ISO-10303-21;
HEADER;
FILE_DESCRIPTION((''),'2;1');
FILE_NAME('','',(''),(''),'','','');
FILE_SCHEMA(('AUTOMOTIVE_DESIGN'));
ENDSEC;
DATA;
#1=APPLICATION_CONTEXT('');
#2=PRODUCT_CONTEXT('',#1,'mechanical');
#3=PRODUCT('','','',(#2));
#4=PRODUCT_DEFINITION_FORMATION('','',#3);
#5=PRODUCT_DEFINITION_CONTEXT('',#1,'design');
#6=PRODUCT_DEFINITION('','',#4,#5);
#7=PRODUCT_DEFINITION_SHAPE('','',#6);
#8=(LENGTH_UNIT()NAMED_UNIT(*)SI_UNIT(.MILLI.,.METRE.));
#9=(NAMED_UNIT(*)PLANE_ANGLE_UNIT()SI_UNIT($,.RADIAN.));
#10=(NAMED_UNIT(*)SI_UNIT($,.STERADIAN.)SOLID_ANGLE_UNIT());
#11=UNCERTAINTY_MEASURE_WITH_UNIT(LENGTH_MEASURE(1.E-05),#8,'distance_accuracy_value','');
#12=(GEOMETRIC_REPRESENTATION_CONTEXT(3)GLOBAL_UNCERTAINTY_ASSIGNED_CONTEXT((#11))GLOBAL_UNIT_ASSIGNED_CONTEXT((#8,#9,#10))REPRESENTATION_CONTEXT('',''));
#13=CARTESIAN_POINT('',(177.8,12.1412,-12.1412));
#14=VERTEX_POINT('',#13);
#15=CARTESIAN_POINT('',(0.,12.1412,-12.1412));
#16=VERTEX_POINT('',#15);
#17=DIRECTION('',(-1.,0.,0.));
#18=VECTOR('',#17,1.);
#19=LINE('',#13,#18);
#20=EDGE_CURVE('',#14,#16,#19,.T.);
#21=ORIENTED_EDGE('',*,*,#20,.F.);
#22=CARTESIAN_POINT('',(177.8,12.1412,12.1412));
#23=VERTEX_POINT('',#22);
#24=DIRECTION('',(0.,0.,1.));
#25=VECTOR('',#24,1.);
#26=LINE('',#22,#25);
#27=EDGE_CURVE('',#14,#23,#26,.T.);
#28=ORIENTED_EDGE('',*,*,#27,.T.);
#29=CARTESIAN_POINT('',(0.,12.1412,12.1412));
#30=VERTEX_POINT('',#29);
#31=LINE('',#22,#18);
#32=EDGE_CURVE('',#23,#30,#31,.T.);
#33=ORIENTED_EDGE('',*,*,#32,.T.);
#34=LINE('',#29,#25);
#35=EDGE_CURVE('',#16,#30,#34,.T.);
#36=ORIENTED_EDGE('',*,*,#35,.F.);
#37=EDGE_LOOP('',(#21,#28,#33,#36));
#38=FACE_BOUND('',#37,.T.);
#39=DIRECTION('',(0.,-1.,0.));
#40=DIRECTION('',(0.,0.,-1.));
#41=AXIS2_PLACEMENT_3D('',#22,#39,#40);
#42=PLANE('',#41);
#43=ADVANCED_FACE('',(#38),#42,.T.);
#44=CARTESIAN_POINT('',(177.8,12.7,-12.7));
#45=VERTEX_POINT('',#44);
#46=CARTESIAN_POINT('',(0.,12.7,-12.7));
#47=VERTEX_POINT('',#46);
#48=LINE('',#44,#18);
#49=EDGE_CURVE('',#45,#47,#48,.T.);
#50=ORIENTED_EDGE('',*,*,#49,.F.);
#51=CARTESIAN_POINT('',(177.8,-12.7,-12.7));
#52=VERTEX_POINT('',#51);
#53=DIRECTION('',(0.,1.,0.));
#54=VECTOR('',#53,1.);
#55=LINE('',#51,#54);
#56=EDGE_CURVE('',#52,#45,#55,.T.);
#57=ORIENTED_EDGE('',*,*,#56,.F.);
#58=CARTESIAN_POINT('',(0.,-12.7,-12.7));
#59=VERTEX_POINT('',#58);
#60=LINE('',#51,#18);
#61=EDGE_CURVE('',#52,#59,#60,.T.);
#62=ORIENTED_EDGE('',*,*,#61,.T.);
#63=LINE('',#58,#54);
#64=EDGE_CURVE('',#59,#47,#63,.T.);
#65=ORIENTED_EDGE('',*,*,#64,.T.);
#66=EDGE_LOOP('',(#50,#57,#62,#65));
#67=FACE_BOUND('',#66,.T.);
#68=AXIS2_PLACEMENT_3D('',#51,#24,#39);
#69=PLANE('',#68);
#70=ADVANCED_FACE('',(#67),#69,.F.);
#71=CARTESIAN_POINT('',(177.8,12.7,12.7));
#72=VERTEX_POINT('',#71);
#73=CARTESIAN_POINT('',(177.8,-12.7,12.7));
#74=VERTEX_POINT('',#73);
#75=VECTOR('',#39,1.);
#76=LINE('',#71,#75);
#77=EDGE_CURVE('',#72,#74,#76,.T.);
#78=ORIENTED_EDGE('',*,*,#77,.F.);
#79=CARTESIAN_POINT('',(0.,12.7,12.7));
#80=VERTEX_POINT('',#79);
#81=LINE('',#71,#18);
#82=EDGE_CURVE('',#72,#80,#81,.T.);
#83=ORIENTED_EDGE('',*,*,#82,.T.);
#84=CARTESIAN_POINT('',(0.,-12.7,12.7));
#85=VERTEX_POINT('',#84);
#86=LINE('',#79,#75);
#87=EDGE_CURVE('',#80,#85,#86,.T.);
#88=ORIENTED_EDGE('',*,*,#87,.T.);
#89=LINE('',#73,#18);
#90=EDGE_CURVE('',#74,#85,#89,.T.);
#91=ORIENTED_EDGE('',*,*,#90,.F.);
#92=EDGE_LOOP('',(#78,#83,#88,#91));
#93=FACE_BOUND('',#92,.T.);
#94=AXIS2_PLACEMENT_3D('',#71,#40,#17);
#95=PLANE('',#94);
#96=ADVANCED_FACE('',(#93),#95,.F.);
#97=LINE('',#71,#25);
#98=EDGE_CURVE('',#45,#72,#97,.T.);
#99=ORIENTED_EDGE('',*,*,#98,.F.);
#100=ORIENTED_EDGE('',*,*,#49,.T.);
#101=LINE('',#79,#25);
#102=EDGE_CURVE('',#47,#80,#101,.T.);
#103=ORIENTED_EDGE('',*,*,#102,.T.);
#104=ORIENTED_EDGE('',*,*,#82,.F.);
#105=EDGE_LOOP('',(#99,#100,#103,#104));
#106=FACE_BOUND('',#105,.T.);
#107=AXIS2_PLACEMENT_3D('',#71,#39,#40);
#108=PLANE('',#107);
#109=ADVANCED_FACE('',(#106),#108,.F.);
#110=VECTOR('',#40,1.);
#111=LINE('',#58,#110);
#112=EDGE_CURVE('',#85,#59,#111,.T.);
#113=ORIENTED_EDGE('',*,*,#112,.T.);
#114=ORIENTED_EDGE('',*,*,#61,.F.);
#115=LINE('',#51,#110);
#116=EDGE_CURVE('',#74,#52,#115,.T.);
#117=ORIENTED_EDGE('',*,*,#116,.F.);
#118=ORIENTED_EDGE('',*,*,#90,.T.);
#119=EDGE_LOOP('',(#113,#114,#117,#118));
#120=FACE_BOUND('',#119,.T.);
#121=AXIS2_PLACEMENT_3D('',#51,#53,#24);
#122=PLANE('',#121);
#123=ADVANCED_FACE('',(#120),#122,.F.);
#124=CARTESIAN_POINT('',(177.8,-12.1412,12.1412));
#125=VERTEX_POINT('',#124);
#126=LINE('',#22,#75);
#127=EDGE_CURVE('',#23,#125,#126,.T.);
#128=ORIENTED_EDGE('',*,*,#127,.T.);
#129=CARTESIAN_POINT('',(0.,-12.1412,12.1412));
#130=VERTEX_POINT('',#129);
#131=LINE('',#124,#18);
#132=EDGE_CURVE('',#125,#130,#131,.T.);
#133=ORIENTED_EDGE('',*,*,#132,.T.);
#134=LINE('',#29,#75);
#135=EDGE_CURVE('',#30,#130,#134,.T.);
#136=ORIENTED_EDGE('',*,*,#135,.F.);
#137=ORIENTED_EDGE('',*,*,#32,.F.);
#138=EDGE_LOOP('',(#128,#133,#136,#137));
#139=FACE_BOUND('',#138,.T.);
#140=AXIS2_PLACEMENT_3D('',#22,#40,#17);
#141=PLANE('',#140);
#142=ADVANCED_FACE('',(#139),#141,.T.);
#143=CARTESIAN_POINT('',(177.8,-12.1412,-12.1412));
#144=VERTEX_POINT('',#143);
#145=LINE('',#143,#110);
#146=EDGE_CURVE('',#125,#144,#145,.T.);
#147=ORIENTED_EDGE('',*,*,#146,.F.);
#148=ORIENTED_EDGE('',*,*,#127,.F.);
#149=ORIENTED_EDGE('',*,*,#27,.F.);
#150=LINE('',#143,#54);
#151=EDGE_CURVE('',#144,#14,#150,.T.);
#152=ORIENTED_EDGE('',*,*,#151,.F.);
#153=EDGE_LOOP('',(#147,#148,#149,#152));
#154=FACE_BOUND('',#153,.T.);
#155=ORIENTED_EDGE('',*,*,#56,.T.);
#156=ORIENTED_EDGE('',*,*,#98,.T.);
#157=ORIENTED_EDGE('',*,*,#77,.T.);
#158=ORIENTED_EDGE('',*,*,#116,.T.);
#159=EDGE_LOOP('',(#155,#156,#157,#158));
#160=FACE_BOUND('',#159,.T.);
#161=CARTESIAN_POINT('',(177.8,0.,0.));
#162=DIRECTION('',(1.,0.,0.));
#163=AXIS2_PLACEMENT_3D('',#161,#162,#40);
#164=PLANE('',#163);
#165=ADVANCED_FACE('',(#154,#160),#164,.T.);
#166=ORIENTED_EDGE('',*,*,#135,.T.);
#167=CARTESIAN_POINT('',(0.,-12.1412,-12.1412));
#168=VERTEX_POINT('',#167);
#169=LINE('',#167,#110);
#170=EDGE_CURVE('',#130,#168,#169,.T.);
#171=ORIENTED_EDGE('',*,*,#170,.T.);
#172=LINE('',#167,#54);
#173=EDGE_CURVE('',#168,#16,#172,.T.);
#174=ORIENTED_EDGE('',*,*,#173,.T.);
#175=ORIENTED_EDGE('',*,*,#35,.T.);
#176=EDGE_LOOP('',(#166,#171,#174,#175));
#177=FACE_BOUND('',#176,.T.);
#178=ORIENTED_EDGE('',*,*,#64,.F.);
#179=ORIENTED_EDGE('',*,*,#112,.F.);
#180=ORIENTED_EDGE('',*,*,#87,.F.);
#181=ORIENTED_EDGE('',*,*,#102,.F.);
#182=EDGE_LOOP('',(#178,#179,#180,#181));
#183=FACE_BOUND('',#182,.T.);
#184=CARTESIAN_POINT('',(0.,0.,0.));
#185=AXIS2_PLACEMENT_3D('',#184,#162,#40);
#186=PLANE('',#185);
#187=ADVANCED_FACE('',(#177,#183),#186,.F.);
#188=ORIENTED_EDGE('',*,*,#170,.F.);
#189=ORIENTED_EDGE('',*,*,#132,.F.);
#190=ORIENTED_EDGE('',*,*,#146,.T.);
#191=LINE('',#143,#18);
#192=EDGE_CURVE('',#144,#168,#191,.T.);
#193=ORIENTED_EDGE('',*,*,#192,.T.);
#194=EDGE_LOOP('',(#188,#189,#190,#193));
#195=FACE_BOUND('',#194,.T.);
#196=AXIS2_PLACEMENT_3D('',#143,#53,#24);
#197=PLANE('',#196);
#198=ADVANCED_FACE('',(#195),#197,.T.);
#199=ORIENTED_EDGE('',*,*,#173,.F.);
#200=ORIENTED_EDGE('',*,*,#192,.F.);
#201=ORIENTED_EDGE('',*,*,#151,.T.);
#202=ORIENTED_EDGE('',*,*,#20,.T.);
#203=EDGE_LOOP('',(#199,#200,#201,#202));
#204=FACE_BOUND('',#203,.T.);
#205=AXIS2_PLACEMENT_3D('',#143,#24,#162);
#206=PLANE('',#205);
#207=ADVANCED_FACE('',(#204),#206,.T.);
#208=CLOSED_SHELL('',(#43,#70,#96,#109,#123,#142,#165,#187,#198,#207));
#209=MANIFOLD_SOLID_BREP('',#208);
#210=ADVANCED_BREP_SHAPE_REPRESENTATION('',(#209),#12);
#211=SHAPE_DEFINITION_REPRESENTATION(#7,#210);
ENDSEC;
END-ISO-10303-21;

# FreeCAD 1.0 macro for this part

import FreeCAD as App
import Part
import Sketcher
Q = App.Units.Quantity


def add_polygon(sketch, points):
    """Adds a closed chain of lines whose ends are joined by coincident constraints."""
    first, n = sketch.GeometryCount, len(points)
    for a, b in zip(points, points[1:] + points[:1]):
        sketch.addGeometry(Part.LineSegment(App.Vector(*a, 0), App.Vector(*b, 0)), False)
    for i in range(n):
        sketch.addConstraint(Sketcher.Constraint("Coincident", first + i, 2, first + (i + 1) % n, 1))

doc = App.newDocument("Part")
body = doc.addObject("PartDesign::Body", "Body")

sketch1 = body.newObject("Sketcher::SketchObject", "Sketch")
sketch1.AttachmentSupport = (doc.getObject("YZ_Plane"), [""])
sketch1.MapMode = "FlatFace"
add_polygon(sketch1, [(-12.7, 12.7), (-12.7, -12.7), (12.7, -12.7), (12.7, 12.7)])
add_polygon(sketch1, [(12.1412, -12.1412), (-12.1412, -12.1412), (-12.1412, 12.1412), (12.1412, 12.1412)])
sketch1.addConstraint([
    Sketcher.Constraint("Vertical", 0),
    Sketcher.Constraint("Horizontal", 1),
    Sketcher.Constraint("Vertical", 2),
    Sketcher.Constraint("Horizontal", 3),
    Sketcher.Constraint("Horizontal", 4),
    Sketcher.Constraint("Vertical", 5),
    Sketcher.Constraint("Horizontal", 6),
    Sketcher.Constraint("Vertical", 7),
    Sketcher.Constraint("Symmetric", 0, 2, 2, 2, -1, 1),
    Sketcher.Constraint("Symmetric", 4, 2, 6, 2, -1, 1),
    Sketcher.Constraint("Equal", 3, 0),
    Sketcher.Constraint("Equal", 6, 5),
    Sketcher.Constraint("DistanceX", 1, 1, 1, 2, Q("1 in")),
    Sketcher.Constraint("DistanceX", 4, 2, 4, 1, Q("0.956 in")),
])
pad1 = body.newObject("PartDesign::Pad", "Pad")
pad1.Profile = sketch1
pad1.Length = Q("7 in")

doc.recompute()
